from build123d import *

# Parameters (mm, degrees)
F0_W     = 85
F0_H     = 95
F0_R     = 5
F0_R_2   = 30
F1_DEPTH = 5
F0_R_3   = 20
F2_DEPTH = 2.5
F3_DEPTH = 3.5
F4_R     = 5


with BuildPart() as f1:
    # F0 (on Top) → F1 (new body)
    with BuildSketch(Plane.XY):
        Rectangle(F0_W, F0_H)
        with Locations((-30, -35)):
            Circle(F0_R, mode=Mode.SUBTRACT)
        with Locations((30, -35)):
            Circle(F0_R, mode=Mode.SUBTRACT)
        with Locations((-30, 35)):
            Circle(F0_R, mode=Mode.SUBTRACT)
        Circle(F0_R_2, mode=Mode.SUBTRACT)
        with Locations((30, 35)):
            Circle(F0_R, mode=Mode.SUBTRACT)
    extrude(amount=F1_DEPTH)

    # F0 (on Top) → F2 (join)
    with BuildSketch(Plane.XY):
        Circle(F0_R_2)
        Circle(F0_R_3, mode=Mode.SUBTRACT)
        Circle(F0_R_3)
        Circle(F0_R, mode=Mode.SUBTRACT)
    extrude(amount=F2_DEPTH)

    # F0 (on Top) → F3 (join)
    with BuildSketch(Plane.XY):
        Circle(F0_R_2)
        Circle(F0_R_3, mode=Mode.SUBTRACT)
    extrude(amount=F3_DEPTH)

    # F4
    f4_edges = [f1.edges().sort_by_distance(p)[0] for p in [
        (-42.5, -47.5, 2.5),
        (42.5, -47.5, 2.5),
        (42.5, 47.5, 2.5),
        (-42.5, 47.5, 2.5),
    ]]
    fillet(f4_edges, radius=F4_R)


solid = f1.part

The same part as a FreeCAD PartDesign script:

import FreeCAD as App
import Part
import Sketcher

V = App.Vector


def edges_at(feature, points):
    """Names of the edges that pass closest to the given points."""
    edges = feature.Shape.Edges
    near = lambda p: min(range(len(edges)), key=lambda i: edges[i].distToShape(Part.Vertex(*p))[0])
    return sorted({f"Edge{near(p) + 1}" for p in points})

doc = App.newDocument("Part")
body = doc.addObject("PartDesign::Body", "Body")

sketch1 = body.newObject("Sketcher::SketchObject", "Sketch")
sketch1.AttachmentSupport = (doc.getObject("XY_Plane"), [""])
sketch1.MapMode = "FlatFace"
sketch1.addGeometry([
    Part.LineSegment(V(-42.5, 47.5, 0), V(-42.5, -47.5, 0)),
    Part.LineSegment(V(-42.5, -47.5, 0), V(42.5, -47.5, 0)),
    Part.LineSegment(V(42.5, -47.5, 0), V(42.5, 47.5, 0)),
    Part.LineSegment(V(42.5, 47.5, 0), V(-42.5, 47.5, 0)),
    Part.Circle(V(-30, -35, 0), V(0, 0, 1), 5),
    Part.Circle(V(30, -35, 0), V(0, 0, 1), 5),
    Part.Circle(V(-30, 35, 0), V(0, 0, 1), 5),
    Part.Circle(V(0, 0, 0), V(0, 0, 1), 30),
    Part.Circle(V(30, 35, 0), V(0, 0, 1), 5),
], False)
sketch1.addConstraint([
    Sketcher.Constraint("Coincident", 0, 2, 1, 1),
    Sketcher.Constraint("Coincident", 1, 2, 2, 1),
    Sketcher.Constraint("Coincident", 2, 2, 3, 1),
    Sketcher.Constraint("Coincident", 3, 2, 0, 1),
    Sketcher.Constraint("Vertical", 0),
    Sketcher.Constraint("Horizontal", 1),
    Sketcher.Constraint("Vertical", 2),
    Sketcher.Constraint("Horizontal", 3),
    Sketcher.Constraint("Coincident", 7, 3, -1, 1),
    Sketcher.Constraint("Equal", 4, 5),
    Sketcher.Constraint("Equal", 5, 6),
    Sketcher.Constraint("Equal", 6, 8),
    Sketcher.Constraint("Symmetric", 5, 3, 6, 3, -1, 1),
    Sketcher.Constraint("Symmetric", 4, 3, 8, 3, -1, 1),
    Sketcher.Constraint("Symmetric", 0, 2, 2, 2, -1, 1),
    Sketcher.Constraint("Symmetric", 4, 3, 5, 3, -2),
    Sketcher.Constraint("Diameter", 4, 10.0),
    Sketcher.Constraint("Diameter", 7, 60.0),
    Sketcher.Constraint("DistanceX", 1, 1, 1, 2, 85.0),
    Sketcher.Constraint("DistanceY", 0, 2, 0, 1, 95.0),
    Sketcher.Constraint("DistanceX", 4, 3, -1, 1, 30.0),
    Sketcher.Constraint("DistanceY", 4, 3, -1, 1, 35.0),
])
pad1 = body.newObject("PartDesign::Pad", "Pad")
pad1.Profile = sketch1
pad1.Length = 5

sketch2 = body.newObject("Sketcher::SketchObject", "Sketch001")
sketch2.AttachmentSupport = (doc.getObject("XY_Plane"), [""])
sketch2.MapMode = "FlatFace"
sketch2.addGeometry([
    Part.Circle(V(0, 0, 0), V(0, 0, 1), 30),
    Part.Circle(V(0, 0, 0), V(0, 0, 1), 5),
], False)
sketch2.addConstraint([
    Sketcher.Constraint("Coincident", 0, 3, -1, 1),
    Sketcher.Constraint("Coincident", 1, 3, -1, 1),
    Sketcher.Constraint("Diameter", 0, 60.0),
    Sketcher.Constraint("Diameter", 1, 10.0),
])
pad2 = body.newObject("PartDesign::Pad", "Pad001")
pad2.Profile = sketch2
pad2.Length = 2.5

sketch3 = body.newObject("Sketcher::SketchObject", "Sketch002")
sketch3.AttachmentSupport = (doc.getObject("XY_Plane"), [""])
sketch3.MapMode = "FlatFace"
sketch3.addGeometry([
    Part.Circle(V(0, 0, 0), V(0, 0, 1), 30),
    Part.Circle(V(0, 0, 0), V(0, 0, 1), 20),
], False)
sketch3.addConstraint([
    Sketcher.Constraint("Coincident", 0, 3, -1, 1),
    Sketcher.Constraint("Coincident", 1, 3, -1, 1),
    Sketcher.Constraint("Diameter", 0, 60.0),
    Sketcher.Constraint("Diameter", 1, 40.0),
])
pad3 = body.newObject("PartDesign::Pad", "Pad002")
pad3.Profile = sketch3
pad3.Length = 3.5
doc.recompute()

fillet = body.newObject("PartDesign::Fillet", "Fillet")
fillet.Base = (pad3, edges_at(pad3, [
    (-42.5, -47.5, 2.5),
    (42.5, -47.5, 2.5),
    (42.5, 47.5, 2.5),
    (-42.5, 47.5, 2.5),
]))
fillet.Radius = 5

doc.recompute()
